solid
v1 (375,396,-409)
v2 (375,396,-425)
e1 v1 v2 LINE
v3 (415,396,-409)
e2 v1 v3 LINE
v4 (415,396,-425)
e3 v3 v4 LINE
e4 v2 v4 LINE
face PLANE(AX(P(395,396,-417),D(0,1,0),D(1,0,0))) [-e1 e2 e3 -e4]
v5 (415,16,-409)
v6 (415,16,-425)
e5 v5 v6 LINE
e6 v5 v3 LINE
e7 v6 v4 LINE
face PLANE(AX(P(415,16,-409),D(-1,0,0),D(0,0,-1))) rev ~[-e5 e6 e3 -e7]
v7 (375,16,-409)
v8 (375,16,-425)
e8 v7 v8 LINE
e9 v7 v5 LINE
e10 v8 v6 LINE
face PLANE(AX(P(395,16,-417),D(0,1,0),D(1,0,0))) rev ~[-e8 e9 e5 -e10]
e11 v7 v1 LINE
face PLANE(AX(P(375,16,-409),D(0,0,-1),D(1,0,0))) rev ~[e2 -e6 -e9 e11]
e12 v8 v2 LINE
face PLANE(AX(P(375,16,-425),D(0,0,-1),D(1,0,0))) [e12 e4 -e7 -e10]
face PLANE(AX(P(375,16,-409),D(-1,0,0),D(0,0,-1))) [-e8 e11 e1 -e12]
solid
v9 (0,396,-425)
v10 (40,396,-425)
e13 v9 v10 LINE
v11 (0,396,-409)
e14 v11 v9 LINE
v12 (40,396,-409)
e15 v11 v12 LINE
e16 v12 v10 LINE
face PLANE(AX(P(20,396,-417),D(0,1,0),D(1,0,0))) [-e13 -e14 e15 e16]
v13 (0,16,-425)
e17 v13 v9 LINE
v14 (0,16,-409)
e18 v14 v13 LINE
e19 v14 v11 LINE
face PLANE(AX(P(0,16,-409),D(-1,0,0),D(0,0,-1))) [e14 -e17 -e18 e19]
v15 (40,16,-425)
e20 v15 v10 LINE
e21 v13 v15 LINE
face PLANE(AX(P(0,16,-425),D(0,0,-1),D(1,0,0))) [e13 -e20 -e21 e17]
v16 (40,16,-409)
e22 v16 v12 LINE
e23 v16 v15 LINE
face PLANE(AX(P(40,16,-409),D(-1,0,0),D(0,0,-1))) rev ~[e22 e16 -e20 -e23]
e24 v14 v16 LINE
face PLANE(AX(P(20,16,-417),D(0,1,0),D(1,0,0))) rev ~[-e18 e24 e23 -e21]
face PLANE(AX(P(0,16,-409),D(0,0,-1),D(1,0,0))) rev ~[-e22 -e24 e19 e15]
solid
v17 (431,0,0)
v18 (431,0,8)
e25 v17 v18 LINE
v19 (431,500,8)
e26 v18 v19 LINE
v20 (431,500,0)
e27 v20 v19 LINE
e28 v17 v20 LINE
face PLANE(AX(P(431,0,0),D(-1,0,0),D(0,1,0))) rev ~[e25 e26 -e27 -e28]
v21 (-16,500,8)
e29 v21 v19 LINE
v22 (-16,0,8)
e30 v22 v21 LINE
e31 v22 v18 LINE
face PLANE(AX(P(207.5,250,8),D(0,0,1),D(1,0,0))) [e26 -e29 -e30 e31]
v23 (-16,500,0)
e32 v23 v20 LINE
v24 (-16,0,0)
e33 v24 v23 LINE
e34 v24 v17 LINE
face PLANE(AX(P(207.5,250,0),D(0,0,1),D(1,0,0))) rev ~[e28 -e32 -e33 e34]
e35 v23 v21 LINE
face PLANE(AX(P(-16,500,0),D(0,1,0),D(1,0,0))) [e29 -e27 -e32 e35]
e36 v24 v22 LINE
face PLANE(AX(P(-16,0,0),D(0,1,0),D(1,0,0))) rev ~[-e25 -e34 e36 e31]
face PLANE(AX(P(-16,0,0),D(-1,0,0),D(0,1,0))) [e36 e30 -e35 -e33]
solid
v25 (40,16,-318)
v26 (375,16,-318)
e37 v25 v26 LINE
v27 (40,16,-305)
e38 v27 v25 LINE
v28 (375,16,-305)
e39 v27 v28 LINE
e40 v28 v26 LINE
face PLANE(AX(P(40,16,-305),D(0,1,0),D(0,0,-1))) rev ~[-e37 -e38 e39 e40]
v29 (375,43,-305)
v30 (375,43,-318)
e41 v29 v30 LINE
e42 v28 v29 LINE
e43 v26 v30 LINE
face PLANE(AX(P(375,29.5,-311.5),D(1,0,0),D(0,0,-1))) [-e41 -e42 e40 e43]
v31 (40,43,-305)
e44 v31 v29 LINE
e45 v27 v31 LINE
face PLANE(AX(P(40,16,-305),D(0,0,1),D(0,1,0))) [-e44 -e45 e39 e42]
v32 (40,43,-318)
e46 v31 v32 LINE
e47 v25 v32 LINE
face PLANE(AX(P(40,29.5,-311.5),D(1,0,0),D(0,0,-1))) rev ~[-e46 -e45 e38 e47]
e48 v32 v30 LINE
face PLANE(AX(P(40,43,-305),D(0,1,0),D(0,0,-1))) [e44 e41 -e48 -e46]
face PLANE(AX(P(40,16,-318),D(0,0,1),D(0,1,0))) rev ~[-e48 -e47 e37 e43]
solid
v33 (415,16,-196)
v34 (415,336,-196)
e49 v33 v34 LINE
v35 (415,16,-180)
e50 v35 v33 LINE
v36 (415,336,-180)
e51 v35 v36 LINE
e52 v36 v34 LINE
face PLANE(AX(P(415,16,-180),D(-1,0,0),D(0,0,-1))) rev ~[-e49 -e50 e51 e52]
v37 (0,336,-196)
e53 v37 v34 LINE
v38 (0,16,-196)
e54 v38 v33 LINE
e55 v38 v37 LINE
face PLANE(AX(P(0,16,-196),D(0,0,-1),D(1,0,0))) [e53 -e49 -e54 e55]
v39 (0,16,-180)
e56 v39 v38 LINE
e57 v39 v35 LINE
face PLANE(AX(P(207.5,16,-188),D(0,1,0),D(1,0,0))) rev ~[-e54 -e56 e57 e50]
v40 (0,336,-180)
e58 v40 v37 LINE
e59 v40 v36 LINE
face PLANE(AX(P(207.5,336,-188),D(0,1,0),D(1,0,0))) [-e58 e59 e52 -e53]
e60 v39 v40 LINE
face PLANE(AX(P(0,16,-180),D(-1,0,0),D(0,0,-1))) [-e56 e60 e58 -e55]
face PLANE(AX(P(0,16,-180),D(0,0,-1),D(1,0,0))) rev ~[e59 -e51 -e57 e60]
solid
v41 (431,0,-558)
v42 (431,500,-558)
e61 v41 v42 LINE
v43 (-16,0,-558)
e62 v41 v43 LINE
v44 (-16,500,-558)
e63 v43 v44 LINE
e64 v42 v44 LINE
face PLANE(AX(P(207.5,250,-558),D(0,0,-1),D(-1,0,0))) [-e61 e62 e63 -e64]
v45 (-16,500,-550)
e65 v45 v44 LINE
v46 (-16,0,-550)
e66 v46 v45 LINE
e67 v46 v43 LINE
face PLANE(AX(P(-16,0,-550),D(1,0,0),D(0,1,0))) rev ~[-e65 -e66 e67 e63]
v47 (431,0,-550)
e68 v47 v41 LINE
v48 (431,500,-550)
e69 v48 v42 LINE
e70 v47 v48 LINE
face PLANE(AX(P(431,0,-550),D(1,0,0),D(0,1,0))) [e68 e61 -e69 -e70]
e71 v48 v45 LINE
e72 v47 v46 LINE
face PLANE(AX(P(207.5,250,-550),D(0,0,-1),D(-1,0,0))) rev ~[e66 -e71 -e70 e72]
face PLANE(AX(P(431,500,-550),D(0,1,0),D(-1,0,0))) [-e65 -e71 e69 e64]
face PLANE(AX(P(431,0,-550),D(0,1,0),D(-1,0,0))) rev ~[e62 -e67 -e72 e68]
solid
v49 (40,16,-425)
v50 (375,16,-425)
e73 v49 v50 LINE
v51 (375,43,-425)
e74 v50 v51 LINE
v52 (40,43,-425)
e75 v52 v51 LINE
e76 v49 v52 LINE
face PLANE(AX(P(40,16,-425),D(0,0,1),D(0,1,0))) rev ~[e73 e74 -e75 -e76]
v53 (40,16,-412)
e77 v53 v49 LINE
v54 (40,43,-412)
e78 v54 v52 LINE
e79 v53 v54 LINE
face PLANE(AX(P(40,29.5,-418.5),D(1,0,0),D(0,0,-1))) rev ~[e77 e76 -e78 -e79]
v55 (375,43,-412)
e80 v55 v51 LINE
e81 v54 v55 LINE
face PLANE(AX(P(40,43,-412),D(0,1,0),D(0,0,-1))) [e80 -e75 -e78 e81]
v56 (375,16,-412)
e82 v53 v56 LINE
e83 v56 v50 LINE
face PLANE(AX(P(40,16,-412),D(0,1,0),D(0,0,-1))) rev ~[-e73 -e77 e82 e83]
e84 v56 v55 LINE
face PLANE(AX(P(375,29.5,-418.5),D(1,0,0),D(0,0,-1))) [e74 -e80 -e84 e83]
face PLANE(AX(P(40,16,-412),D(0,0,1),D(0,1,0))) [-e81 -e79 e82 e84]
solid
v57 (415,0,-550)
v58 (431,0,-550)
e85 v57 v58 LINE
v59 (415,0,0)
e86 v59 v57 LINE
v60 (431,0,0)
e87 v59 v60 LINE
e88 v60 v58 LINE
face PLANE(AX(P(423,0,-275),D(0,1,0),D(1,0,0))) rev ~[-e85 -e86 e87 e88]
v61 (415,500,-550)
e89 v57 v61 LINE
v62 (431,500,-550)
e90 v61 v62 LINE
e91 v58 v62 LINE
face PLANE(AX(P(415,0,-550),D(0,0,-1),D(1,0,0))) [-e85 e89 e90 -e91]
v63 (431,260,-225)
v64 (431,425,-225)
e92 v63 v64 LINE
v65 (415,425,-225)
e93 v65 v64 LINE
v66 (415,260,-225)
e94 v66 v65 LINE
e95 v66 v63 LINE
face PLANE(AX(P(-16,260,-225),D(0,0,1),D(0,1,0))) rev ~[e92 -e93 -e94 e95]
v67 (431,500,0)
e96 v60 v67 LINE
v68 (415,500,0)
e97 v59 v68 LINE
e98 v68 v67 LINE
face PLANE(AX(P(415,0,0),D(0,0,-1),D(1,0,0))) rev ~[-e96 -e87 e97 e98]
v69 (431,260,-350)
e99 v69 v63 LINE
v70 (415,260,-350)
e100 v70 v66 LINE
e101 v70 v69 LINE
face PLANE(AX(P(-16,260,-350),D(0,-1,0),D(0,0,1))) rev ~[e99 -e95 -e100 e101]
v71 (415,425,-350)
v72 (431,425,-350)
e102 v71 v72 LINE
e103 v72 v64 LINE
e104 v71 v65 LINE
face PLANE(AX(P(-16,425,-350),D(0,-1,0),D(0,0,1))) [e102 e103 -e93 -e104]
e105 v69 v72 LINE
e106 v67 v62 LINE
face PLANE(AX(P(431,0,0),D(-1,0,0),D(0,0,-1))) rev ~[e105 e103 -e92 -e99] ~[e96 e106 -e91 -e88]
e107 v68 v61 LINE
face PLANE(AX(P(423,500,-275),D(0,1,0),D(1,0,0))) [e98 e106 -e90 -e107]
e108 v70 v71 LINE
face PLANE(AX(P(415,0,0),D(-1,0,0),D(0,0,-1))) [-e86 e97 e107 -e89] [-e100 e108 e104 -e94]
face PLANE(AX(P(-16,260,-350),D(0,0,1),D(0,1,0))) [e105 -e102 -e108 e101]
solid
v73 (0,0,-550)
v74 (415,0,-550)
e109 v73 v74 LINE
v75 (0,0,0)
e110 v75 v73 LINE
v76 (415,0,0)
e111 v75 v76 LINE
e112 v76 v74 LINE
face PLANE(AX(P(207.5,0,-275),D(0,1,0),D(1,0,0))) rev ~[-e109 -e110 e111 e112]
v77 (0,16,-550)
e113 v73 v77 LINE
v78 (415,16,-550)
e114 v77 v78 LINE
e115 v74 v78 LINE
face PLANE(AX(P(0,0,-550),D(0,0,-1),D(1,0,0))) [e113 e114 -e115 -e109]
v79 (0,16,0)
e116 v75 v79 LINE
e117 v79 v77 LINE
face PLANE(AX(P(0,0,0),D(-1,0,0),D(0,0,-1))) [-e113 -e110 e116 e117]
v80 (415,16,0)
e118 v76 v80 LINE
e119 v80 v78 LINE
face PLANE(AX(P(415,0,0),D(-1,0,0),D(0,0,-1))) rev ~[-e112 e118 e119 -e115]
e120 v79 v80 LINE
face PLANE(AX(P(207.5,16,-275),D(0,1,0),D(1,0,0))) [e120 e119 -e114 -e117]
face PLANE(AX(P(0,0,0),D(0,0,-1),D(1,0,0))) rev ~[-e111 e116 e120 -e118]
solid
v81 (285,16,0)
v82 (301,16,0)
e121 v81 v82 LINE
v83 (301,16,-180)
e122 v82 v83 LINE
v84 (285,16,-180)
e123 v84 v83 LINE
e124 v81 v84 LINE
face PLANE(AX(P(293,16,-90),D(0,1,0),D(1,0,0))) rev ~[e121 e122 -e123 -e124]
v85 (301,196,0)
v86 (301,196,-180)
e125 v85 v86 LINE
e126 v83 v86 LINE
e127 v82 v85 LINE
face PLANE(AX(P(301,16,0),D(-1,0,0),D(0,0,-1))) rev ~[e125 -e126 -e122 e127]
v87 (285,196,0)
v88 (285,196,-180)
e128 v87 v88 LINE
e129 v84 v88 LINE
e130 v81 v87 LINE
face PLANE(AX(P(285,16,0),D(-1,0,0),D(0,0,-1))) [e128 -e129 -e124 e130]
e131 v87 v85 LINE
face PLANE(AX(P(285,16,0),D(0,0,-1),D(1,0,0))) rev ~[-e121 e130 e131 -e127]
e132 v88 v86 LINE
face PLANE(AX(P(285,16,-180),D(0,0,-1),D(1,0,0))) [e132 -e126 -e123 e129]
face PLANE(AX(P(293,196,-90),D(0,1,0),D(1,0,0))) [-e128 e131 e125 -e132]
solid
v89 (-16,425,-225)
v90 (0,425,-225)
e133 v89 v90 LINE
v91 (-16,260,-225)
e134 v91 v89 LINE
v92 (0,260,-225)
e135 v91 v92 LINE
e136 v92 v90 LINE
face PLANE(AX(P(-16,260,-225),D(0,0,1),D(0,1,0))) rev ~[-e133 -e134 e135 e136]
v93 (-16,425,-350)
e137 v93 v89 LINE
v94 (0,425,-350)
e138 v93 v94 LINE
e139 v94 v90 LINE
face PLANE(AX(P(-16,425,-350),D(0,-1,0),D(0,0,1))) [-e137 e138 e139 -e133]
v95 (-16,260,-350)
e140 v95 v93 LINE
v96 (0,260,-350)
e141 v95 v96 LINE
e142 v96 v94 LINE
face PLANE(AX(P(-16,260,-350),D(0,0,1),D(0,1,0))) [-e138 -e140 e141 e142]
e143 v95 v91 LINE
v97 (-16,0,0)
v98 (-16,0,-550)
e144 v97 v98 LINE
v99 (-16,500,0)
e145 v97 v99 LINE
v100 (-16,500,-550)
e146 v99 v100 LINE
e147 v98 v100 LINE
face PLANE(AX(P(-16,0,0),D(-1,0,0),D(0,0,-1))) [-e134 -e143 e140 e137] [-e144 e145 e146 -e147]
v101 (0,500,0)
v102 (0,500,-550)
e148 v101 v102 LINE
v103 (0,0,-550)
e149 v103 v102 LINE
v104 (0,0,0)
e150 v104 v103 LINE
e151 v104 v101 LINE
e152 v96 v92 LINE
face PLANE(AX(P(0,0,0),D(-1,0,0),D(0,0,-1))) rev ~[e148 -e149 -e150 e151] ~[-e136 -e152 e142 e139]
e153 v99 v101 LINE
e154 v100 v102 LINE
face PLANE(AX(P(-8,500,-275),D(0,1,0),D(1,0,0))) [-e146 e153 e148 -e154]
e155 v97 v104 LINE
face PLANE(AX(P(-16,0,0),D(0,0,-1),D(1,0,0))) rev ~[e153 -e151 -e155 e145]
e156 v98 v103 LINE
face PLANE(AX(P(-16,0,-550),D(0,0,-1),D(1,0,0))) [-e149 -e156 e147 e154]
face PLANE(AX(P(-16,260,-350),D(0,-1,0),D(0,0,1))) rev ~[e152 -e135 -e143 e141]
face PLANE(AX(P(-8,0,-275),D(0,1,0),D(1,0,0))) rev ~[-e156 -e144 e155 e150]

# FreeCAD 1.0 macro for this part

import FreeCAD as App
import Part
import Sketcher
from FreeCAD import Vector

doc = App.newDocument("Part")
params = doc.addObject("Spreadsheet::Sheet", "Params")
for row, (alias, value) in enumerate([
    ("sketch1_width", "415 mm"),
    ("sketch1_height", "550 mm"),
    ("pad1_length", "16 mm"),
    ("sketch2_width", "27 mm"),
    ("sketch2_height", "13 mm"),
    ("pad2_length", "335 mm"),
    ("sketch3_width", "27 mm"),
    ("sketch3_height", "13 mm"),
    ("pad3_length", "335 mm"),
    ("sketch4_width", "16 mm"),
    ("sketch4_height", "550 mm"),
    ("pad4_length", "500 mm"),
    ("sketch5_width", "16 mm"),
    ("sketch5_height", "550 mm"),
    ("pad5_length", "500 mm"),
    ("sketch6_width", "165 mm"),
    ("sketch6_height", "125 mm"),
    ("pad6_length", "868.357481 mm"),
    ("sketch7_width", "415 mm"),
    ("sketch7_height", "16 mm"),
    ("pad7_length", "320 mm"),
    ("sketch8_width", "447 mm"),
    ("sketch8_height", "500 mm"),
    ("pad8_length", "8 mm"),
    ("sketch9_width", "447 mm"),
    ("sketch9_height", "500 mm"),
    ("pad9_length", "8 mm"),
    ("sketch10_width", "40 mm"),
    ("sketch10_height", "16 mm"),
    ("pad10_length", "380 mm"),
    ("sketch11_width", "40 mm"),
    ("sketch11_height", "16 mm"),
    ("pad11_length", "380 mm"),
    ("sketch12_width", "16 mm"),
    ("sketch12_height", "180 mm"),
    ("pad12_length", "180 mm"),
], start=1):
    params.set(f"A{row}", alias)
    params.set(f"B{row}", "=" + value)
    params.setAlias(f"B{row}", alias)

body = doc.addObject("PartDesign::Body", "Body")

# Sketch on XZ plane
sketch1 = doc.addObject("Sketcher::SketchObject", "Sketch")
body.addObject(sketch1)
sketch1.AttachmentSupport = (doc.XZ_Plane, [""])
sketch1.MapMode = "FlatFace"
sketch1.addGeometry(Part.LineSegment(Vector(0, -550, 0), Vector(0, 0, 0)), False)
sketch1.addGeometry(Part.LineSegment(Vector(0, 0, 0), Vector(415, 0, 0)), False)
sketch1.addGeometry(Part.LineSegment(Vector(415, 0, 0), Vector(415, -550, 0)), False)
sketch1.addGeometry(Part.LineSegment(Vector(415, -550, 0), Vector(0, -550, 0)), False)
sketch1.addConstraint(Sketcher.Constraint("Coincident", 0, 2, 1, 1))
sketch1.addConstraint(Sketcher.Constraint("Coincident", 1, 2, 2, 1))
sketch1.addConstraint(Sketcher.Constraint("Coincident", 2, 2, 3, 1))
sketch1.addConstraint(Sketcher.Constraint("Coincident", 3, 2, 0, 1))
sketch1.addConstraint(Sketcher.Constraint("Vertical", 0))
sketch1.addConstraint(Sketcher.Constraint("Horizontal", 1))
sketch1.addConstraint(Sketcher.Constraint("Vertical", 2))
sketch1.addConstraint(Sketcher.Constraint("Horizontal", 3))
sketch1.addConstraint(Sketcher.Constraint("Coincident", 0, 2, -1, 1))
sketch1.addConstraint(Sketcher.Constraint("DistanceX", 1, 1, 1, 2, 415.0))
sketch1.addConstraint(Sketcher.Constraint("DistanceY", 0, 1, 0, 2, 550.0))
sketch1.setExpression("Constraints[9]", "Params.sketch1_width")
sketch1.setExpression("Constraints[10]", "Params.sketch1_height")
pad1 = doc.addObject("PartDesign::Pad", "Pad")
body.addObject(pad1)
pad1.Profile = sketch1
pad1.setExpression("Length", "Params.pad1_length")
pad1.Reversed = True
body2 = doc.addObject("PartDesign::Body", "Body001")

# Sketch on YZ plane
sketch2 = doc.addObject("Sketcher::SketchObject", "Sketch001")
body2.addObject(sketch2)
sketch2.AttachmentSupport = (doc.getObject("YZ_Plane001"), [""])
sketch2.MapMode = "FlatFace"
sketch2.AttachmentOffset = App.Placement(Vector(0, 0, 40), App.Rotation())
sketch2.addGeometry(Part.LineSegment(Vector(43, -305, 0), Vector(16, -305, 0)), False)
sketch2.addGeometry(Part.LineSegment(Vector(16, -305, 0), Vector(16, -318, 0)), False)
sketch2.addGeometry(Part.LineSegment(Vector(16, -318, 0), Vector(43, -318, 0)), False)
sketch2.addGeometry(Part.LineSegment(Vector(43, -318, 0), Vector(43, -305, 0)), False)
sketch2.addConstraint(Sketcher.Constraint("Coincident", 0, 2, 1, 1))
sketch2.addConstraint(Sketcher.Constraint("Coincident", 1, 2, 2, 1))
sketch2.addConstraint(Sketcher.Constraint("Coincident", 2, 2, 3, 1))
sketch2.addConstraint(Sketcher.Constraint("Coincident", 3, 2, 0, 1))
sketch2.addConstraint(Sketcher.Constraint("Horizontal", 0))
sketch2.addConstraint(Sketcher.Constraint("Vertical", 1))
sketch2.addConstraint(Sketcher.Constraint("Horizontal", 2))
sketch2.addConstraint(Sketcher.Constraint("Vertical", 3))
sketch2.addConstraint(Sketcher.Constraint("DistanceX", 0, 2, 0, 1, 27.0))
sketch2.addConstraint(Sketcher.Constraint("DistanceY", 1, 2, 1, 1, 13.0))
sketch2.addConstraint(Sketcher.Constraint("DistanceX", -1, 1, 0, 2, 16.0))
sketch2.addConstraint(Sketcher.Constraint("DistanceY", 0, 2, -1, 1, 305.0))
sketch2.setExpression("Constraints[8]", "Params.sketch2_width")
sketch2.setExpression("Constraints[9]", "Params.sketch2_height")
pad2 = doc.addObject("PartDesign::Pad", "Pad001")
body2.addObject(pad2)
pad2.Profile = sketch2
pad2.setExpression("Length", "Params.pad2_length")
body3 = doc.addObject("PartDesign::Body", "Body002")

# Sketch on YZ plane
sketch3 = doc.addObject("Sketcher::SketchObject", "Sketch002")
body3.addObject(sketch3)
sketch3.AttachmentSupport = (doc.getObject("YZ_Plane002"), [""])
sketch3.MapMode = "FlatFace"
sketch3.AttachmentOffset = App.Placement(Vector(0, 0, 40), App.Rotation())
sketch3.addGeometry(Part.LineSegment(Vector(43, -412, 0), Vector(16, -412, 0)), False)
sketch3.addGeometry(Part.LineSegment(Vector(16, -412, 0), Vector(16, -425, 0)), False)
sketch3.addGeometry(Part.LineSegment(Vector(16, -425, 0), Vector(43, -425, 0)), False)
sketch3.addGeometry(Part.LineSegment(Vector(43, -425, 0), Vector(43, -412, 0)), False)
sketch3.addConstraint(Sketcher.Constraint("Coincident", 0, 2, 1, 1))
sketch3.addConstraint(Sketcher.Constraint("Coincident", 1, 2, 2, 1))
sketch3.addConstraint(Sketcher.Constraint("Coincident", 2, 2, 3, 1))
sketch3.addConstraint(Sketcher.Constraint("Coincident", 3, 2, 0, 1))
sketch3.addConstraint(Sketcher.Constraint("Horizontal", 0))
sketch3.addConstraint(Sketcher.Constraint("Vertical", 1))
sketch3.addConstraint(Sketcher.Constraint("Horizontal", 2))
sketch3.addConstraint(Sketcher.Constraint("Vertical", 3))
sketch3.addConstraint(Sketcher.Constraint("DistanceX", 0, 2, 0, 1, 27.0))
sketch3.addConstraint(Sketcher.Constraint("DistanceY", 1, 2, 1, 1, 13.0))
sketch3.addConstraint(Sketcher.Constraint("DistanceX", -1, 1, 0, 2, 16.0))
sketch3.addConstraint(Sketcher.Constraint("DistanceY", 0, 2, -1, 1, 412.0))
sketch3.setExpression("Constraints[8]", "Params.sketch3_width")
sketch3.setExpression("Constraints[9]", "Params.sketch3_height")
pad3 = doc.addObject("PartDesign::Pad", "Pad002")
body3.addObject(pad3)
pad3.Profile = sketch3
pad3.setExpression("Length", "Params.pad3_length")
body4 = doc.addObject("PartDesign::Body", "Body003")

# Sketch on XZ plane
sketch4 = doc.addObject("Sketcher::SketchObject", "Sketch003")
body4.addObject(sketch4)
sketch4.AttachmentSupport = (doc.getObject("XZ_Plane003"), [""])
sketch4.MapMode = "FlatFace"
sketch4.addGeometry(Part.LineSegment(Vector(-16, -550, 0), Vector(-16, 0, 0)), False)
sketch4.addGeometry(Part.LineSegment(Vector(-16, 0, 0), Vector(0, 0, 0)), False)
sketch4.addGeometry(Part.LineSegment(Vector(0, 0, 0), Vector(0, -550, 0)), False)
sketch4.addGeometry(Part.LineSegment(Vector(0, -550, 0), Vector(-16, -550, 0)), False)
sketch4.addConstraint(Sketcher.Constraint("Coincident", 0, 2, 1, 1))
sketch4.addConstraint(Sketcher.Constraint("Coincident", 1, 2, 2, 1))
sketch4.addConstraint(Sketcher.Constraint("Coincident", 2, 2, 3, 1))
sketch4.addConstraint(Sketcher.Constraint("Coincident", 3, 2, 0, 1))
sketch4.addConstraint(Sketcher.Constraint("Vertical", 0))
sketch4.addConstraint(Sketcher.Constraint("Horizontal", 1))
sketch4.addConstraint(Sketcher.Constraint("Vertical", 2))
sketch4.addConstraint(Sketcher.Constraint("Horizontal", 3))
sketch4.addConstraint(Sketcher.Constraint("Coincident", 1, 2, -1, 1))
sketch4.addConstraint(Sketcher.Constraint("DistanceX", 1, 1, 1, 2, 16.0))
sketch4.addConstraint(Sketcher.Constraint("DistanceY", 0, 1, 0, 2, 550.0))
sketch4.setExpression("Constraints[9]", "Params.sketch4_width")
sketch4.setExpression("Constraints[10]", "Params.sketch4_height")
pad4 = doc.addObject("PartDesign::Pad", "Pad003")
body4.addObject(pad4)
pad4.Profile = sketch4
pad4.setExpression("Length", "Params.pad4_length")
pad4.Reversed = True
body5 = doc.addObject("PartDesign::Body", "Body004")

# Sketch on XZ plane
sketch5 = doc.addObject("Sketcher::SketchObject", "Sketch004")
body5.addObject(sketch5)
sketch5.AttachmentSupport = (doc.getObject("XZ_Plane004"), [""])
sketch5.MapMode = "FlatFace"
sketch5.addGeometry(Part.LineSegment(Vector(415, -550, 0), Vector(415, 0, 0)), False)
sketch5.addGeometry(Part.LineSegment(Vector(415, 0, 0), Vector(431, 0, 0)), False)
sketch5.addGeometry(Part.LineSegment(Vector(431, 0, 0), Vector(431, -550, 0)), False)
sketch5.addGeometry(Part.LineSegment(Vector(431, -550, 0), Vector(415, -550, 0)), False)
sketch5.addConstraint(Sketcher.Constraint("Coincident", 0, 2, 1, 1))
sketch5.addConstraint(Sketcher.Constraint("Coincident", 1, 2, 2, 1))
sketch5.addConstraint(Sketcher.Constraint("Coincident", 2, 2, 3, 1))
sketch5.addConstraint(Sketcher.Constraint("Coincident", 3, 2, 0, 1))
sketch5.addConstraint(Sketcher.Constraint("Vertical", 0))
sketch5.addConstraint(Sketcher.Constraint("Horizontal", 1))
sketch5.addConstraint(Sketcher.Constraint("Vertical", 2))
sketch5.addConstraint(Sketcher.Constraint("Horizontal", 3))
sketch5.addConstraint(Sketcher.Constraint("PointOnObject", 0, 2, -1))
sketch5.addConstraint(Sketcher.Constraint("DistanceX", 1, 1, 1, 2, 16.0))
sketch5.addConstraint(Sketcher.Constraint("DistanceY", 0, 1, 0, 2, 550.0))
sketch5.addConstraint(Sketcher.Constraint("DistanceX", -1, 1, 0, 2, 415.0))
sketch5.setExpression("Constraints[9]", "Params.sketch5_width")
sketch5.setExpression("Constraints[10]", "Params.sketch5_height")
pad5 = doc.addObject("PartDesign::Pad", "Pad004")
body5.addObject(pad5)
pad5.Profile = sketch5
pad5.setExpression("Length", "Params.pad5_length")
pad5.Reversed = True
body6 = doc.addObject("PartDesign::Body", "Body005")

# Sketch on YZ plane
sketch6 = doc.addObject("Sketcher::SketchObject", "Sketch005")
body6.addObject(sketch6)
sketch6.AttachmentSupport = (doc.getObject("YZ_Plane005"), [""])
sketch6.MapMode = "FlatFace"
sketch6.AttachmentOffset = App.Placement(Vector(0, 0, -16), App.Rotation())
sketch6.addGeometry(Part.LineSegment(Vector(425, -350, 0), Vector(260, -350, 0)), False)
sketch6.addGeometry(Part.LineSegment(Vector(260, -350, 0), Vector(260, -225, 0)), False)
sketch6.addGeometry(Part.LineSegment(Vector(260, -225, 0), Vector(425, -225, 0)), False)
sketch6.addGeometry(Part.LineSegment(Vector(425, -225, 0), Vector(425, -350, 0)), False)
sketch6.addConstraint(Sketcher.Constraint("Coincident", 0, 2, 1, 1))
sketch6.addConstraint(Sketcher.Constraint("Coincident", 1, 2, 2, 1))
sketch6.addConstraint(Sketcher.Constraint("Coincident", 2, 2, 3, 1))
sketch6.addConstraint(Sketcher.Constraint("Coincident", 3, 2, 0, 1))
sketch6.addConstraint(Sketcher.Constraint("Horizontal", 0))
sketch6.addConstraint(Sketcher.Constraint("Vertical", 1))
sketch6.addConstraint(Sketcher.Constraint("Horizontal", 2))
sketch6.addConstraint(Sketcher.Constraint("Vertical", 3))
sketch6.addConstraint(Sketcher.Constraint("DistanceX", 0, 2, 0, 1, 165.0))
sketch6.addConstraint(Sketcher.Constraint("DistanceY", 1, 1, 1, 2, 125.0))
sketch6.addConstraint(Sketcher.Constraint("DistanceX", -1, 1, 0, 2, 260.0))
sketch6.addConstraint(Sketcher.Constraint("DistanceY", 0, 2, -1, 1, 350.0))
sketch6.setExpression("Constraints[8]", "Params.sketch6_width")
sketch6.setExpression("Constraints[9]", "Params.sketch6_height")
pad6 = doc.addObject("PartDesign::Pad", "Pad005")
body6.addObject(pad6)
pad6.Profile = sketch6
pad6.setExpression("Length", "Params.pad6_length")
doc.recompute()

body7 = doc.addObject("PartDesign::Body", "Body006")
body7.BaseFeature = body6
boolean = doc.addObject("PartDesign::Boolean", "Boolean")
body4.addObject(boolean)
boolean.Type = "Cut"
boolean.addObjects([body7])
doc.recompute()

boolean2 = doc.addObject("PartDesign::Boolean", "Boolean001")
body5.addObject(boolean2)
boolean2.Type = "Cut"
boolean2.addObjects([body6])
body8 = doc.addObject("PartDesign::Body", "Body007")

# Sketch on XZ plane
sketch7 = doc.addObject("Sketcher::SketchObject", "Sketch006")
body8.addObject(sketch7)
sketch7.AttachmentSupport = (doc.getObject("XZ_Plane007"), [""])
sketch7.MapMode = "FlatFace"
sketch7.AttachmentOffset = App.Placement(Vector(0, 0, -16), App.Rotation())
sketch7.addGeometry(Part.LineSegment(Vector(0, -196, 0), Vector(0, -180, 0)), False)
sketch7.addGeometry(Part.LineSegment(Vector(0, -180, 0), Vector(415, -180, 0)), False)
sketch7.addGeometry(Part.LineSegment(Vector(415, -180, 0), Vector(415, -196, 0)), False)
sketch7.addGeometry(Part.LineSegment(Vector(415, -196, 0), Vector(0, -196, 0)), False)
sketch7.addConstraint(Sketcher.Constraint("Coincident", 0, 2, 1, 1))
sketch7.addConstraint(Sketcher.Constraint("Coincident", 1, 2, 2, 1))
sketch7.addConstraint(Sketcher.Constraint("Coincident", 2, 2, 3, 1))
sketch7.addConstraint(Sketcher.Constraint("Coincident", 3, 2, 0, 1))
sketch7.addConstraint(Sketcher.Constraint("Vertical", 0))
sketch7.addConstraint(Sketcher.Constraint("Horizontal", 1))
sketch7.addConstraint(Sketcher.Constraint("Vertical", 2))
sketch7.addConstraint(Sketcher.Constraint("Horizontal", 3))
sketch7.addConstraint(Sketcher.Constraint("PointOnObject", 0, 2, -2))
sketch7.addConstraint(Sketcher.Constraint("DistanceX", 1, 1, 1, 2, 415.0))
sketch7.addConstraint(Sketcher.Constraint("DistanceY", 0, 1, 0, 2, 16.0))
sketch7.addConstraint(Sketcher.Constraint("DistanceY", 0, 2, -1, 1, 180.0))
sketch7.setExpression("Constraints[9]", "Params.sketch7_width")
sketch7.setExpression("Constraints[10]", "Params.sketch7_height")
pad7 = doc.addObject("PartDesign::Pad", "Pad006")
body8.addObject(pad7)
pad7.Profile = sketch7
pad7.setExpression("Length", "Params.pad7_length")
pad7.Reversed = True
body9 = doc.addObject("PartDesign::Body", "Body008")

# Sketch on XY plane
sketch8 = doc.addObject("Sketcher::SketchObject", "Sketch007")
body9.addObject(sketch8)
sketch8.AttachmentSupport = (doc.getObject("XY_Plane008"), [""])
sketch8.MapMode = "FlatFace"
sketch8.AttachmentOffset = App.Placement(Vector(0, 0, -550), App.Rotation())
sketch8.addGeometry(Part.LineSegment(Vector(431, 500, 0), Vector(431, 0, 0)), False)
sketch8.addGeometry(Part.LineSegment(Vector(431, 0, 0), Vector(-16, 0, 0)), False)
sketch8.addGeometry(Part.LineSegment(Vector(-16, 0, 0), Vector(-16, 500, 0)), False)
sketch8.addGeometry(Part.LineSegment(Vector(-16, 500, 0), Vector(431, 500, 0)), False)
sketch8.addConstraint(Sketcher.Constraint("Coincident", 0, 2, 1, 1))
sketch8.addConstraint(Sketcher.Constraint("Coincident", 1, 2, 2, 1))
sketch8.addConstraint(Sketcher.Constraint("Coincident", 2, 2, 3, 1))
sketch8.addConstraint(Sketcher.Constraint("Coincident", 3, 2, 0, 1))
sketch8.addConstraint(Sketcher.Constraint("Vertical", 0))
sketch8.addConstraint(Sketcher.Constraint("Horizontal", 1))
sketch8.addConstraint(Sketcher.Constraint("Vertical", 2))
sketch8.addConstraint(Sketcher.Constraint("Horizontal", 3))
sketch8.addConstraint(Sketcher.Constraint("PointOnObject", 0, 2, -1))
sketch8.addConstraint(Sketcher.Constraint("DistanceX", 1, 2, 1, 1, 447.0))
sketch8.addConstraint(Sketcher.Constraint("DistanceY", 0, 2, 0, 1, 500.0))
sketch8.addConstraint(Sketcher.Constraint("DistanceX", -1, 1, 0, 2, 431.0))
sketch8.setExpression("Constraints[9]", "Params.sketch8_width")
sketch8.setExpression("Constraints[10]", "Params.sketch8_height")
pad8 = doc.addObject("PartDesign::Pad", "Pad007")
body9.addObject(pad8)
pad8.Profile = sketch8
pad8.setExpression("Length", "Params.pad8_length")
pad8.Reversed = True
body10 = doc.addObject("PartDesign::Body", "Body009")

# Sketch on XY plane
sketch9 = doc.addObject("Sketcher::SketchObject", "Sketch008")
body10.addObject(sketch9)
sketch9.AttachmentSupport = (doc.getObject("XY_Plane009"), [""])
sketch9.MapMode = "FlatFace"
sketch9.addGeometry(Part.LineSegment(Vector(-16, 500, 0), Vector(-16, 0, 0)), False)
sketch9.addGeometry(Part.LineSegment(Vector(-16, 0, 0), Vector(431, 0, 0)), False)
sketch9.addGeometry(Part.LineSegment(Vector(431, 0, 0), Vector(431, 500, 0)), False)
sketch9.addGeometry(Part.LineSegment(Vector(431, 500, 0), Vector(-16, 500, 0)), False)
sketch9.addConstraint(Sketcher.Constraint("Coincident", 0, 2, 1, 1))
sketch9.addConstraint(Sketcher.Constraint("Coincident", 1, 2, 2, 1))
sketch9.addConstraint(Sketcher.Constraint("Coincident", 2, 2, 3, 1))
sketch9.addConstraint(Sketcher.Constraint("Coincident", 3, 2, 0, 1))
sketch9.addConstraint(Sketcher.Constraint("Vertical", 0))
sketch9.addConstraint(Sketcher.Constraint("Horizontal", 1))
sketch9.addConstraint(Sketcher.Constraint("Vertical", 2))
sketch9.addConstraint(Sketcher.Constraint("Horizontal", 3))
sketch9.addConstraint(Sketcher.Constraint("PointOnObject", 0, 2, -1))
sketch9.addConstraint(Sketcher.Constraint("DistanceX", 1, 1, 1, 2, 447.0))
sketch9.addConstraint(Sketcher.Constraint("DistanceY", 0, 2, 0, 1, 500.0))
sketch9.addConstraint(Sketcher.Constraint("DistanceX", 0, 2, -1, 1, 16.0))
sketch9.setExpression("Constraints[9]", "Params.sketch9_width")
sketch9.setExpression("Constraints[10]", "Params.sketch9_height")
pad9 = doc.addObject("PartDesign::Pad", "Pad008")
body10.addObject(pad9)
pad9.Profile = sketch9
pad9.setExpression("Length", "Params.pad9_length")
body11 = doc.addObject("PartDesign::Body", "Body010")

# Sketch on XZ plane
sketch10 = doc.addObject("Sketcher::SketchObject", "Sketch009")
body11.addObject(sketch10)
sketch10.AttachmentSupport = (doc.getObject("XZ_Plane010"), [""])
sketch10.MapMode = "FlatFace"
sketch10.AttachmentOffset = App.Placement(Vector(0, 0, -16), App.Rotation())
sketch10.addGeometry(Part.LineSegment(Vector(0, -425, 0), Vector(0, -409, 0)), False)
sketch10.addGeometry(Part.LineSegment(Vector(0, -409, 0), Vector(40, -409, 0)), False)
sketch10.addGeometry(Part.LineSegment(Vector(40, -409, 0), Vector(40, -425, 0)), False)
sketch10.addGeometry(Part.LineSegment(Vector(40, -425, 0), Vector(0, -425, 0)), False)
sketch10.addConstraint(Sketcher.Constraint("Coincident", 0, 2, 1, 1))
sketch10.addConstraint(Sketcher.Constraint("Coincident", 1, 2, 2, 1))
sketch10.addConstraint(Sketcher.Constraint("Coincident", 2, 2, 3, 1))
sketch10.addConstraint(Sketcher.Constraint("Coincident", 3, 2, 0, 1))
sketch10.addConstraint(Sketcher.Constraint("Vertical", 0))
sketch10.addConstraint(Sketcher.Constraint("Horizontal", 1))
sketch10.addConstraint(Sketcher.Constraint("Vertical", 2))
sketch10.addConstraint(Sketcher.Constraint("Horizontal", 3))
sketch10.addConstraint(Sketcher.Constraint("PointOnObject", 0, 2, -2))
sketch10.addConstraint(Sketcher.Constraint("DistanceX", 1, 1, 1, 2, 40.0))
sketch10.addConstraint(Sketcher.Constraint("DistanceY", 0, 1, 0, 2, 16.0))
sketch10.addConstraint(Sketcher.Constraint("DistanceY", 0, 2, -1, 1, 409.0))
sketch10.setExpression("Constraints[9]", "Params.sketch10_width")
sketch10.setExpression("Constraints[10]", "Params.sketch10_height")
pad10 = doc.addObject("PartDesign::Pad", "Pad009")
body11.addObject(pad10)
pad10.Profile = sketch10
pad10.setExpression("Length", "Params.pad10_length")
pad10.Reversed = True
body12 = doc.addObject("PartDesign::Body", "Body011")

# Sketch on XZ plane
sketch11 = doc.addObject("Sketcher::SketchObject", "Sketch010")
body12.addObject(sketch11)
sketch11.AttachmentSupport = (doc.getObject("XZ_Plane011"), [""])
sketch11.MapMode = "FlatFace"
sketch11.AttachmentOffset = App.Placement(Vector(0, 0, -16), App.Rotation())
sketch11.addGeometry(Part.LineSegment(Vector(375, -425, 0), Vector(375, -409, 0)), False)
sketch11.addGeometry(Part.LineSegment(Vector(375, -409, 0), Vector(415, -409, 0)), False)
sketch11.addGeometry(Part.LineSegment(Vector(415, -409, 0), Vector(415, -425, 0)), False)
sketch11.addGeometry(Part.LineSegment(Vector(415, -425, 0), Vector(375, -425, 0)), False)
sketch11.addConstraint(Sketcher.Constraint("Coincident", 0, 2, 1, 1))
sketch11.addConstraint(Sketcher.Constraint("Coincident", 1, 2, 2, 1))
sketch11.addConstraint(Sketcher.Constraint("Coincident", 2, 2, 3, 1))
sketch11.addConstraint(Sketcher.Constraint("Coincident", 3, 2, 0, 1))
sketch11.addConstraint(Sketcher.Constraint("Vertical", 0))
sketch11.addConstraint(Sketcher.Constraint("Horizontal", 1))
sketch11.addConstraint(Sketcher.Constraint("Vertical", 2))
sketch11.addConstraint(Sketcher.Constraint("Horizontal", 3))
sketch11.addConstraint(Sketcher.Constraint("DistanceX", 1, 1, 1, 2, 40.0))
sketch11.addConstraint(Sketcher.Constraint("DistanceY", 0, 1, 0, 2, 16.0))
sketch11.addConstraint(Sketcher.Constraint("DistanceX", -1, 1, 0, 2, 375.0))
sketch11.addConstraint(Sketcher.Constraint("DistanceY", 0, 2, -1, 1, 409.0))
sketch11.setExpression("Constraints[8]", "Params.sketch11_width")
sketch11.setExpression("Constraints[9]", "Params.sketch11_height")
pad11 = doc.addObject("PartDesign::Pad", "Pad010")
body12.addObject(pad11)
pad11.Profile = sketch11
pad11.setExpression("Length", "Params.pad11_length")
pad11.Reversed = True
body13 = doc.addObject("PartDesign::Body", "Body012")

# Sketch on XZ plane
sketch12 = doc.addObject("Sketcher::SketchObject", "Sketch011")
body13.addObject(sketch12)
sketch12.AttachmentSupport = (doc.getObject("XZ_Plane012"), [""])
sketch12.MapMode = "FlatFace"
sketch12.AttachmentOffset = App.Placement(Vector(0, 0, -16), App.Rotation())
sketch12.addGeometry(Part.LineSegment(Vector(285, -180, 0), Vector(285, 0, 0)), False)
sketch12.addGeometry(Part.LineSegment(Vector(285, 0, 0), Vector(301, 0, 0)), False)
sketch12.addGeometry(Part.LineSegment(Vector(301, 0, 0), Vector(301, -180, 0)), False)
sketch12.addGeometry(Part.LineSegment(Vector(301, -180, 0), Vector(285, -180, 0)), False)
sketch12.addConstraint(Sketcher.Constraint("Coincident", 0, 2, 1, 1))
sketch12.addConstraint(Sketcher.Constraint("Coincident", 1, 2, 2, 1))
sketch12.addConstraint(Sketcher.Constraint("Coincident", 2, 2, 3, 1))
sketch12.addConstraint(Sketcher.Constraint("Coincident", 3, 2, 0, 1))
sketch12.addConstraint(Sketcher.Constraint("Vertical", 0))
sketch12.addConstraint(Sketcher.Constraint("Horizontal", 1))
sketch12.addConstraint(Sketcher.Constraint("Vertical", 2))
sketch12.addConstraint(Sketcher.Constraint("Horizontal", 3))
sketch12.addConstraint(Sketcher.Constraint("PointOnObject", 0, 2, -1))
sketch12.addConstraint(Sketcher.Constraint("DistanceX", 1, 1, 1, 2, 16.0))
sketch12.addConstraint(Sketcher.Constraint("DistanceY", 0, 1, 0, 2, 180.0))
sketch12.addConstraint(Sketcher.Constraint("DistanceX", -1, 1, 0, 2, 285.0))
sketch12.setExpression("Constraints[9]", "Params.sketch12_width")
sketch12.setExpression("Constraints[10]", "Params.sketch12_height")
pad12 = doc.addObject("PartDesign::Pad", "Pad011")
body13.addObject(pad12)
pad12.Profile = sketch12
pad12.setExpression("Length", "Params.pad12_length")
pad12.Reversed = True

doc.recompute()
